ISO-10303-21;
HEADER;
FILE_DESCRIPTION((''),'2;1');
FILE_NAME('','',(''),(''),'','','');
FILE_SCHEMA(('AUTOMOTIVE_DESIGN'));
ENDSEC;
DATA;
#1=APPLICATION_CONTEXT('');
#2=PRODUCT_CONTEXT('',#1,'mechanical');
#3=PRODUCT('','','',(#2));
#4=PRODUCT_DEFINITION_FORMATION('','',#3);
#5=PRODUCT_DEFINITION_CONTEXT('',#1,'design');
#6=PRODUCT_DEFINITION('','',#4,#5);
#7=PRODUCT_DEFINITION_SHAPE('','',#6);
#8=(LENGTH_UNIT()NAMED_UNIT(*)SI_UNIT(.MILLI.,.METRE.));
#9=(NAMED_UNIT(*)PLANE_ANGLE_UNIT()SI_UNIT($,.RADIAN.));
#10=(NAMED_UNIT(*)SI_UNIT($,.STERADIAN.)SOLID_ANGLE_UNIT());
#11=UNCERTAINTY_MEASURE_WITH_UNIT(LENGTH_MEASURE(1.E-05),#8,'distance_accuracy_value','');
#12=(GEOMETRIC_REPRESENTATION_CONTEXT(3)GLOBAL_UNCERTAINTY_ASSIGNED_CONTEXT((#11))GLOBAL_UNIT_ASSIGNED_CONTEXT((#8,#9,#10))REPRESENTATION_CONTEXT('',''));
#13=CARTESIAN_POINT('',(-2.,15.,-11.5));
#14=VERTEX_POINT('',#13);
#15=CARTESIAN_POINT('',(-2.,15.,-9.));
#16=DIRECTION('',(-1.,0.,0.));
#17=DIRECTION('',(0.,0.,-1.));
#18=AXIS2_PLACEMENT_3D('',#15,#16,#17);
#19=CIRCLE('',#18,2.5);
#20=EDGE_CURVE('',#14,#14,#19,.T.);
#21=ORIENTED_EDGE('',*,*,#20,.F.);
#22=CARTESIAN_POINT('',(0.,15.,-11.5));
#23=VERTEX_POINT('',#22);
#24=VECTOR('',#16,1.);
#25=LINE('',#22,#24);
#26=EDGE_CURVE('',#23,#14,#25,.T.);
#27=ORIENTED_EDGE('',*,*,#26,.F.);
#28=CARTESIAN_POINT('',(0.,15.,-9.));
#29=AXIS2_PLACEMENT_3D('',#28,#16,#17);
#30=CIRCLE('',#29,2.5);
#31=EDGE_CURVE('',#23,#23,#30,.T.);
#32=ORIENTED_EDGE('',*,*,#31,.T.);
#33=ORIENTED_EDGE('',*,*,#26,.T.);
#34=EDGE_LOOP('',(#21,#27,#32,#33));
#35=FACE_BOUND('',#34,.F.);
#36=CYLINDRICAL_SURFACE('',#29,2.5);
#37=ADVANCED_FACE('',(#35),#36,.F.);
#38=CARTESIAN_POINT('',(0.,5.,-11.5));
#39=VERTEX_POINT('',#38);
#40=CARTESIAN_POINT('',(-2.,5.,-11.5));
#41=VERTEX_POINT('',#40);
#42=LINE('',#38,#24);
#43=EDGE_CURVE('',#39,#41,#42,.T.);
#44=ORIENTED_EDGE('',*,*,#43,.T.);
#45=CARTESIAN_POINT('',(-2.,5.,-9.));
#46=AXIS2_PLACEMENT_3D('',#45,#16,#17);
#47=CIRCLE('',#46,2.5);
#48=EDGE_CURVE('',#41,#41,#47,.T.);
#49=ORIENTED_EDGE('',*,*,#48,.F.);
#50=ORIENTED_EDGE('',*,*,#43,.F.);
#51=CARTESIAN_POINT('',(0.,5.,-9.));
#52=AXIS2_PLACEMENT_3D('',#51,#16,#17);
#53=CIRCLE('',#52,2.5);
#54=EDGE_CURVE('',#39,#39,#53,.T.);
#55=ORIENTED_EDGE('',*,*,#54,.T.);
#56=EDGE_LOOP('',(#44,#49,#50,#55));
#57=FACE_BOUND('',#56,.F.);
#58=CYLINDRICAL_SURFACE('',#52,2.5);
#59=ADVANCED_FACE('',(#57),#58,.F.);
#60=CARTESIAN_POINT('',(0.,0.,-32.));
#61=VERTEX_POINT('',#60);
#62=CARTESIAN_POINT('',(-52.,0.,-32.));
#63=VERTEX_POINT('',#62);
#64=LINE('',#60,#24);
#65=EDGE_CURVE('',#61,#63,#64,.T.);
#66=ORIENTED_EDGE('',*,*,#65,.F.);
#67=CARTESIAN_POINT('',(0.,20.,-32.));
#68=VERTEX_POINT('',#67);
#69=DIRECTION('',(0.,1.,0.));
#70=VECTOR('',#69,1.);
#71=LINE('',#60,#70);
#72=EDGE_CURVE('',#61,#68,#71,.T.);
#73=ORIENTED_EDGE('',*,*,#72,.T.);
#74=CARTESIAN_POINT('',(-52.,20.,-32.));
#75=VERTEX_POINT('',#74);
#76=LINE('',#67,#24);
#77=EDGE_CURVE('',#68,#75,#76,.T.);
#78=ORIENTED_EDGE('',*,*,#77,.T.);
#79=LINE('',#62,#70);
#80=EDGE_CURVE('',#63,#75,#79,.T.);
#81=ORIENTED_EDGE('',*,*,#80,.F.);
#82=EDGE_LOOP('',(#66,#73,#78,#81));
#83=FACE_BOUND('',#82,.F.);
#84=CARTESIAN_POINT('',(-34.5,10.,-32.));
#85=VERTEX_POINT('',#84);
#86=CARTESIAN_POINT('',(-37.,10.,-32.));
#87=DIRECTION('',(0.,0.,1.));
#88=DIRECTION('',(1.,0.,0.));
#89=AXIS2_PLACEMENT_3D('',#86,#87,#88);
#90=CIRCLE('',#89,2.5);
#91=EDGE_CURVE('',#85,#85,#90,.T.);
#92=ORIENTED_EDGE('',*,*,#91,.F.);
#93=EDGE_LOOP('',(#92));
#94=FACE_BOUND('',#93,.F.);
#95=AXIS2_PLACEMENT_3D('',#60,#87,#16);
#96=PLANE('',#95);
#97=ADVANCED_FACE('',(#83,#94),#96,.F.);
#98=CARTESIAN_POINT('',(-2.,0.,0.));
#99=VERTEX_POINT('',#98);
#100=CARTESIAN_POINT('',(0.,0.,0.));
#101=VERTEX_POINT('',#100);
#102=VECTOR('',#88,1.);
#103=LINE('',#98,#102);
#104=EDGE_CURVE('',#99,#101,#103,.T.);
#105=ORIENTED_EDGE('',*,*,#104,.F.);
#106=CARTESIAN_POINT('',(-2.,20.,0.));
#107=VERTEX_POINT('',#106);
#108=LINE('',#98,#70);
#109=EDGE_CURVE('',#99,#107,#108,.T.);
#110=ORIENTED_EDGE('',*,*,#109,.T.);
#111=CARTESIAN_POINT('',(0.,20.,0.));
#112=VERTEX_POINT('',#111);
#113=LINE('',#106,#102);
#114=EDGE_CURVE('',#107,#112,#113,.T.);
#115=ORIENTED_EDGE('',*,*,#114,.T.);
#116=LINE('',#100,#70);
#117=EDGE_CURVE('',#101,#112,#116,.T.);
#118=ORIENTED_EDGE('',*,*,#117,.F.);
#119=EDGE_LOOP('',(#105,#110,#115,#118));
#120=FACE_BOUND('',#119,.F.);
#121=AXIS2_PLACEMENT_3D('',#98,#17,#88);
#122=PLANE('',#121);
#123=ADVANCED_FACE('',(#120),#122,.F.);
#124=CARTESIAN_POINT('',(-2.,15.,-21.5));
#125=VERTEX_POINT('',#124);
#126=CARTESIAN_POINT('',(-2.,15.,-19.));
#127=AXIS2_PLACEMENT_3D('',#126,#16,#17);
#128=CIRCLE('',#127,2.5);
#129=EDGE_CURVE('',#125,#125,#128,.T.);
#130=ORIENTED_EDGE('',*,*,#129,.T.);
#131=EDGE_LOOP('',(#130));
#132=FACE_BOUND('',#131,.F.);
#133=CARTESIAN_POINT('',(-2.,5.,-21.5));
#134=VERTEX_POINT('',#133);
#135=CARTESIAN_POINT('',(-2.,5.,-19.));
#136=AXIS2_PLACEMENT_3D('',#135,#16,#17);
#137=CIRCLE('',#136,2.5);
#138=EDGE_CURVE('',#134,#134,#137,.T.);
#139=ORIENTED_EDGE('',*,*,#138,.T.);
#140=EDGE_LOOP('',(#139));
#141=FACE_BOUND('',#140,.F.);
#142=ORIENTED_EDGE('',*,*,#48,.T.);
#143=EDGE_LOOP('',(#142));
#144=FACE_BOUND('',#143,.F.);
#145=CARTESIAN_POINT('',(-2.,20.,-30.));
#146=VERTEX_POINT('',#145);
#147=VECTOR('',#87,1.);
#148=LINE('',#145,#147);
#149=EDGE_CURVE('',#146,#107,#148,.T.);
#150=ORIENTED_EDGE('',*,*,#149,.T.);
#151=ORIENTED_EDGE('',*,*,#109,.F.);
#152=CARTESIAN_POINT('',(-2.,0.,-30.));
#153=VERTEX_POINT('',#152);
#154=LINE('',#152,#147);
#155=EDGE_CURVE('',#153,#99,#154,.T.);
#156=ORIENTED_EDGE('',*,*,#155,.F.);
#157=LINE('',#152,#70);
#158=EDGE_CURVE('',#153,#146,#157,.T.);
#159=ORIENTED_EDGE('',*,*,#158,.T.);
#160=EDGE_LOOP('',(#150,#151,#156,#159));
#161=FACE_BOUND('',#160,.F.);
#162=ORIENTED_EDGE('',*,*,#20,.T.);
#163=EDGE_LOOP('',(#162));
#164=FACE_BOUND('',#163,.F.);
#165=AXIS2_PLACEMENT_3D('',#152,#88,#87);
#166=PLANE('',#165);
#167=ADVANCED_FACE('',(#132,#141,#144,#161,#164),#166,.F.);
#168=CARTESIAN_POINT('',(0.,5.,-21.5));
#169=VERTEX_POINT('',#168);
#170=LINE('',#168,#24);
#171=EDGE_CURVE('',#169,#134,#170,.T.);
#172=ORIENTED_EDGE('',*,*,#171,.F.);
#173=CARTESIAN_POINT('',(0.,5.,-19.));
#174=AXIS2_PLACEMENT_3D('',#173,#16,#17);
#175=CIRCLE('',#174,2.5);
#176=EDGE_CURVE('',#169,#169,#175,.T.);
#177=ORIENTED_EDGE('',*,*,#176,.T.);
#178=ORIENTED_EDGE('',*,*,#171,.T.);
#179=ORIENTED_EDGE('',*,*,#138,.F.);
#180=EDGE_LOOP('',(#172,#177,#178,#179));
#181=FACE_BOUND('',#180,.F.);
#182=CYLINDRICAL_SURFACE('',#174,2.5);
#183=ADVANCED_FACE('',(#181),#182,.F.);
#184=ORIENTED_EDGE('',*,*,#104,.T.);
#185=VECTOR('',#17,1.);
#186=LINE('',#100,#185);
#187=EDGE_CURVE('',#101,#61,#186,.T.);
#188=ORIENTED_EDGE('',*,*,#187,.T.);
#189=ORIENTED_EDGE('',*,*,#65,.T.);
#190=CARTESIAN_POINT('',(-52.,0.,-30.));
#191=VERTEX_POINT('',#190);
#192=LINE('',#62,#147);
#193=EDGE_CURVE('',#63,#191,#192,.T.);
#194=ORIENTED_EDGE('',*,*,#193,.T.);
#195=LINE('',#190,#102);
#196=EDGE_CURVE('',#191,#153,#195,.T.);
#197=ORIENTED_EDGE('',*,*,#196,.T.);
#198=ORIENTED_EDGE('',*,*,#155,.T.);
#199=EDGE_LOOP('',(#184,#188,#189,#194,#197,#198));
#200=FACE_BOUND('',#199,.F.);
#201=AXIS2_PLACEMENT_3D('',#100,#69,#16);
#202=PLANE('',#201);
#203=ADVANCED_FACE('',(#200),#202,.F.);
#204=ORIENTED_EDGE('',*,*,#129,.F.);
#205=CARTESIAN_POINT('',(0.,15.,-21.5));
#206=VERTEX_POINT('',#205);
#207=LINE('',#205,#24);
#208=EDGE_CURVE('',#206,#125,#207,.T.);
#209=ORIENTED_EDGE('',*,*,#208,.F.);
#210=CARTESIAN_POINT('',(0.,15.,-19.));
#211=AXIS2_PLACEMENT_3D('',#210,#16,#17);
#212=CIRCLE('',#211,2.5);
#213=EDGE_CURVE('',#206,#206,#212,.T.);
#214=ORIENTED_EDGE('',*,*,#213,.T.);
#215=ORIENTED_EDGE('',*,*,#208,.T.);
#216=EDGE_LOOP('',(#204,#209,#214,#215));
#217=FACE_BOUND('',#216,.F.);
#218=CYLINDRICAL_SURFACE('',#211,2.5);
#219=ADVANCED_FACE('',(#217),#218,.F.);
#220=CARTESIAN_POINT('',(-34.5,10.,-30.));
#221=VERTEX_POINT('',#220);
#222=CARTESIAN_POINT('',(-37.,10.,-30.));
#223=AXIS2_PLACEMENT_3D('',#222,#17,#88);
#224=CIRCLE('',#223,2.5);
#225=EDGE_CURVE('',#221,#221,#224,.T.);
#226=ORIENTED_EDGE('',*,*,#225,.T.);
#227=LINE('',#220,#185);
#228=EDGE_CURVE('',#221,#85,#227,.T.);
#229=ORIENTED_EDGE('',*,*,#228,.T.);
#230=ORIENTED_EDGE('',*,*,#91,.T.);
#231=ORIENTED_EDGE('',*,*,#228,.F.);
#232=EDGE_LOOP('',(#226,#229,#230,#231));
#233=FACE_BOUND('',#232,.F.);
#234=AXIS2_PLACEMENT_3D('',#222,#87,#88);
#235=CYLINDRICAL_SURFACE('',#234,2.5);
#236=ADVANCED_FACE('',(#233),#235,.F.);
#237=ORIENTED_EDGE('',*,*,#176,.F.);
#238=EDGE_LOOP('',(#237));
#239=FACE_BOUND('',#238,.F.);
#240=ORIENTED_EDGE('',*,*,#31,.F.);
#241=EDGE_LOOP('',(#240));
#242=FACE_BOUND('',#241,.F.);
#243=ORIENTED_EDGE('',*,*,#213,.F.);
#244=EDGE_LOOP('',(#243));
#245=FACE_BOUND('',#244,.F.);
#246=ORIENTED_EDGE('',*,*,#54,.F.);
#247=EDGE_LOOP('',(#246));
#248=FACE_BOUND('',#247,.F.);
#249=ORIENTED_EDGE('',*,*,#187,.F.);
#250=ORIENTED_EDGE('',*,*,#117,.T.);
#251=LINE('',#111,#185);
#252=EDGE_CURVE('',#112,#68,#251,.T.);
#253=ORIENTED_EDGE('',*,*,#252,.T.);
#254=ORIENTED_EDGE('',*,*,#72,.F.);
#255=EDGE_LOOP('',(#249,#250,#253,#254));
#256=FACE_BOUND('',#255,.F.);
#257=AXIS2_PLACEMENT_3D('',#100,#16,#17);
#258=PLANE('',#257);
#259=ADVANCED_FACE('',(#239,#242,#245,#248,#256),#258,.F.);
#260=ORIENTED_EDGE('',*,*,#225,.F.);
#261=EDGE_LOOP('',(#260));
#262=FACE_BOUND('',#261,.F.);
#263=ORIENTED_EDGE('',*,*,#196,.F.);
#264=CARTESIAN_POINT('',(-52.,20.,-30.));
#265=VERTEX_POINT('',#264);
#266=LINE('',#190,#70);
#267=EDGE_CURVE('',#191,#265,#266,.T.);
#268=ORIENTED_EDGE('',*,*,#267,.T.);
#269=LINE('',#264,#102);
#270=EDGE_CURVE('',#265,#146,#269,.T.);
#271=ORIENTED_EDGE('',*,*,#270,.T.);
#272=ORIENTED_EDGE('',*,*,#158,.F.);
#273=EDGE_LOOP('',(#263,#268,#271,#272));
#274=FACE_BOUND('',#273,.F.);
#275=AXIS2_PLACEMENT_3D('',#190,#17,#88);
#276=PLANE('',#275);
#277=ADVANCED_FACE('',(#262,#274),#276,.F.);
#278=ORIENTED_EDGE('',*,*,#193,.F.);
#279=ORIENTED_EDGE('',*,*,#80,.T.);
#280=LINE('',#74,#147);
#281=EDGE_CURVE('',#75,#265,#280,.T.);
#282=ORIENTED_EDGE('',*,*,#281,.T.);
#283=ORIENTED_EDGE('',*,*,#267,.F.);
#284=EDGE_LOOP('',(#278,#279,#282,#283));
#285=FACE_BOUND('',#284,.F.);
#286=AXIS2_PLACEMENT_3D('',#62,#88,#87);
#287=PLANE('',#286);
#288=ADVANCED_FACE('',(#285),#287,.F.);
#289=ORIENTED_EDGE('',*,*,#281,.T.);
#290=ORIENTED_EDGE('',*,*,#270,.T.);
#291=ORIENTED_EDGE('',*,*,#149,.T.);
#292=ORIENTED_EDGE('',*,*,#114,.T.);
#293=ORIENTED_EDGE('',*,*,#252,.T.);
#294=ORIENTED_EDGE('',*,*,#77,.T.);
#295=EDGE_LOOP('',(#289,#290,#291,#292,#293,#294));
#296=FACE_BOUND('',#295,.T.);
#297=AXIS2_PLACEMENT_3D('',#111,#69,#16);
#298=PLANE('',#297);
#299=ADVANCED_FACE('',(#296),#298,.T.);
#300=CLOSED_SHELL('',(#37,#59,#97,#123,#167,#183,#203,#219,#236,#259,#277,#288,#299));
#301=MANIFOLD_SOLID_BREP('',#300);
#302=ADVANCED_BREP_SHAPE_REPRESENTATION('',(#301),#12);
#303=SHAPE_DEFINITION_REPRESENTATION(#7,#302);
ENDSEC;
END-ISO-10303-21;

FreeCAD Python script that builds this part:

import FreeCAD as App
import Part
import Sketcher
from FreeCAD import Vector
Q = App.Units.Quantity


def add_polygon(sketch, points):
    """Adds a closed chain of lines whose ends are joined by coincident constraints."""
    first, n = sketch.GeometryCount, len(points)
    for a, b in zip(points, points[1:] + points[:1]):
        sketch.addGeometry(Part.LineSegment(App.Vector(*a, 0), App.Vector(*b, 0)), False)
    for i in range(n):
        sketch.addConstraint(Sketcher.Constraint("Coincident", first + i, 2, first + (i + 1) % n, 1))

doc = App.newDocument("Part")
body = doc.addObject("PartDesign::Body", "Body")

# Sketch on XZ plane
sketch1 = doc.addObject("Sketcher::SketchObject", "Sketch")
body.addObject(sketch1)
sketch1.AttachmentSupport = (doc.XZ_Plane, [""])
sketch1.MapMode = "FlatFace"
add_polygon(sketch1, [(-2, 0), (0, 0), (0, -32), (-52, -32), (-52, -30), (-2, -30)])  # lines 0-5
sketch1.addConstraint(Sketcher.Constraint("Horizontal", 0))
sketch1.addConstraint(Sketcher.Constraint("Vertical", 1))
sketch1.addConstraint(Sketcher.Constraint("Horizontal", 2))
sketch1.addConstraint(Sketcher.Constraint("Vertical", 3))
sketch1.addConstraint(Sketcher.Constraint("Horizontal", 4))
sketch1.addConstraint(Sketcher.Constraint("Vertical", 5))
sketch1.addConstraint(Sketcher.Constraint("Coincident", 0, 2, -1, 1))
sketch1.addConstraint(Sketcher.Constraint("Equal", 0, 3))
sketch1.addConstraint(Sketcher.Constraint("DistanceX", 0, 1, 0, 2, Q("2 mm")))
sketch1.addConstraint(Sketcher.Constraint("DistanceX", 4, 1, 4, 2, Q("50 mm")))
sketch1.addConstraint(Sketcher.Constraint("DistanceY", 5, 1, 5, 2, Q("30 mm")))
pad1 = doc.addObject("PartDesign::Pad", "Pad")
body.addObject(pad1)
pad1.Profile = sketch1
pad1.Length = 20
pad1.Reversed = True

# Sketch on XY plane
sketch2 = doc.addObject("Sketcher::SketchObject", "Sketch001")
body.addObject(sketch2)
sketch2.AttachmentSupport = (doc.XY_Plane, [""])
sketch2.MapMode = "FlatFace"
sketch2.AttachmentOffset = App.Placement(Vector(0, 0, -30), App.Rotation())
sketch2.addGeometry(Part.Circle(Vector(-37, 10, 0), Vector(0, 0, 1), 2.5), False)
sketch2.addConstraint(Sketcher.Constraint("Diameter", 0, Q("5 mm")))
sketch2.addConstraint(Sketcher.Constraint("DistanceX", 0, 3, -1, 1, Q("37 mm")))
sketch2.addConstraint(Sketcher.Constraint("DistanceY", -1, 1, 0, 3, Q("10 mm")))
pocket1 = doc.addObject("PartDesign::Pocket", "Pocket")
body.addObject(pocket1)
pocket1.Profile = sketch2
pocket1.Length = 30

# Sketch on YZ plane
sketch3 = doc.addObject("Sketcher::SketchObject", "Sketch002")
body.addObject(sketch3)
sketch3.AttachmentSupport = (doc.YZ_Plane, [""])
sketch3.MapMode = "FlatFace"
sketch3.addGeometry(Part.Circle(Vector(5, -9, 0), Vector(0, 0, 1), 2.5), False)
sketch3.addGeometry(Part.Circle(Vector(15, -9, 0), Vector(0, 0, 1), 2.5), False)
sketch3.addGeometry(Part.Circle(Vector(15, -19, 0), Vector(0, 0, 1), 2.5), False)
sketch3.addGeometry(Part.Circle(Vector(5, -19, 0), Vector(0, 0, 1), 2.5), False)
sketch3.addConstraint(Sketcher.Constraint("Equal", 0, 1))
sketch3.addConstraint(Sketcher.Constraint("Equal", 1, 2))
sketch3.addConstraint(Sketcher.Constraint("Equal", 2, 3))
sketch3.addConstraint(Sketcher.Constraint("Horizontal", 0, 3, 1, 3))
sketch3.addConstraint(Sketcher.Constraint("Horizontal", 2, 3, 3, 3))
sketch3.addConstraint(Sketcher.Constraint("Vertical", 1, 3, 2, 3))
sketch3.addConstraint(Sketcher.Constraint("Vertical", 0, 3, 3, 3))
sketch3.addConstraint(Sketcher.Constraint("Diameter", 0, Q("5 mm")))
sketch3.addConstraint(Sketcher.Constraint("DistanceX", -1, 1, 0, 3, Q("5 mm")))
sketch3.addConstraint(Sketcher.Constraint("DistanceY", 0, 3, -1, 1, Q("9 mm")))
sketch3.addConstraint(Sketcher.Constraint("DistanceX", -1, 1, 1, 3, Q("15 mm")))
sketch3.addConstraint(Sketcher.Constraint("DistanceY", 2, 3, -1, 1, Q("19 mm")))
doc.recompute()
hole = doc.addObject("PartDesign::Hole", "Hole")
body.addObject(hole)
hole.Profile = sketch3
hole.ThreadType = "None"
hole.Diameter = 5
hole.DepthType = "ThroughAll"

doc.recompute()
